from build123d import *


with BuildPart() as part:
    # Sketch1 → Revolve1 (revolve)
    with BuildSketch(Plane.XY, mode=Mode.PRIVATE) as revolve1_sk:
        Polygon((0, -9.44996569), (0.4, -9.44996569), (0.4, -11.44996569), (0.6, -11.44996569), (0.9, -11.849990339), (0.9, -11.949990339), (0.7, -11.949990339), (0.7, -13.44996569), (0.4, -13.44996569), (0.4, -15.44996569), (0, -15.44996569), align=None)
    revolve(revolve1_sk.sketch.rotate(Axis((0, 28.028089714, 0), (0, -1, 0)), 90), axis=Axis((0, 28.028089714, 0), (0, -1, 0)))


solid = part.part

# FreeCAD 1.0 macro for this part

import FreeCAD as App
import Part
import Sketcher
from FreeCAD import Vector

doc = App.newDocument("Part")
params = doc.addObject("Spreadsheet::Sheet", "Params")
for row, (alias, value) in enumerate([
    ("sketch1_height", "6 mm"),
    ("sketch1_height2", "2 mm"),
    ("sketch1_width", "0.4 mm"),
    ("sketch1_width2", "0.3 mm"),
    ("sketch1_width3", "0.2 mm"),
    ("revolution_angle", "360 deg"),
], start=1):
    params.set(f"A{row}", alias)
    params.set(f"B{row}", "=" + value)
    params.setAlias(f"B{row}", alias)

body = doc.addObject("PartDesign::Body", "Body")

sketch1 = body.newObject("Sketcher::SketchObject", "Sketch")
sketch1.AttachmentSupport = (doc.getObject("XY_Plane"), [""])
sketch1.MapMode = "FlatFace"
sketch1.addGeometry(Part.LineSegment(Vector(0.4, -9.45, 0), Vector(0, -9.45, 0)), False)
sketch1.addGeometry(Part.LineSegment(Vector(0, -9.45, 0), Vector(0, -15.45, 0)), False)
sketch1.addGeometry(Part.LineSegment(Vector(0, -15.45, 0), Vector(0.4, -15.45, 0)), False)
sketch1.addGeometry(Part.LineSegment(Vector(0.4, -15.45, 0), Vector(0.4, -13.45, 0)), False)
sketch1.addGeometry(Part.LineSegment(Vector(0.4, -13.45, 0), Vector(0.7, -13.45, 0)), False)
sketch1.addGeometry(Part.LineSegment(Vector(0.7, -13.45, 0), Vector(0.7, -11.95, 0)), False)
sketch1.addGeometry(Part.LineSegment(Vector(0.7, -11.95, 0), Vector(0.9, -11.95, 0)), False)
sketch1.addGeometry(Part.LineSegment(Vector(0.9, -11.95, 0), Vector(0.9, -11.85, 0)), False)
sketch1.addGeometry(Part.LineSegment(Vector(0.9, -11.85, 0), Vector(0.6, -11.45, 0)), False)
sketch1.addGeometry(Part.LineSegment(Vector(0.6, -11.45, 0), Vector(0.4, -11.45, 0)), False)
sketch1.addGeometry(Part.LineSegment(Vector(0.4, -11.45, 0), Vector(0.4, -9.45, 0)), False)
sketch1.addConstraint(Sketcher.Constraint("Coincident", 0, 2, 1, 1))
sketch1.addConstraint(Sketcher.Constraint("Coincident", 1, 2, 2, 1))
sketch1.addConstraint(Sketcher.Constraint("Coincident", 2, 2, 3, 1))
sketch1.addConstraint(Sketcher.Constraint("Coincident", 3, 2, 4, 1))
sketch1.addConstraint(Sketcher.Constraint("Coincident", 4, 2, 5, 1))
sketch1.addConstraint(Sketcher.Constraint("Coincident", 5, 2, 6, 1))
sketch1.addConstraint(Sketcher.Constraint("Coincident", 6, 2, 7, 1))
sketch1.addConstraint(Sketcher.Constraint("Coincident", 7, 2, 8, 1))
sketch1.addConstraint(Sketcher.Constraint("Coincident", 8, 2, 9, 1))
sketch1.addConstraint(Sketcher.Constraint("Coincident", 9, 2, 10, 1))
sketch1.addConstraint(Sketcher.Constraint("Coincident", 10, 2, 0, 1))
sketch1.addConstraint(Sketcher.Constraint("Horizontal", 0))
sketch1.addConstraint(Sketcher.Constraint("Vertical", 1))
sketch1.addConstraint(Sketcher.Constraint("Horizontal", 2))
sketch1.addConstraint(Sketcher.Constraint("Vertical", 3))
sketch1.addConstraint(Sketcher.Constraint("Horizontal", 4))
sketch1.addConstraint(Sketcher.Constraint("Vertical", 5))
sketch1.addConstraint(Sketcher.Constraint("Horizontal", 6))
sketch1.addConstraint(Sketcher.Constraint("Vertical", 7))
sketch1.addConstraint(Sketcher.Constraint("Horizontal", 9))
sketch1.addConstraint(Sketcher.Constraint("Vertical", 10))
sketch1.addConstraint(Sketcher.Constraint("PointOnObject", 0, 2, -2))
sketch1.addConstraint(Sketcher.Constraint("Vertical", 3, 2, 9, 2))
sketch1.addConstraint(Sketcher.Constraint("Equal", 6, 9))
sketch1.addConstraint(Sketcher.Constraint("Equal", 3, 10))
sketch1.addConstraint(Sketcher.Constraint("DistanceY", 1, 2, 1, 1, 6.0))
sketch1.addConstraint(Sketcher.Constraint("DistanceY", 3, 1, 3, 2, 2.0))
sketch1.addConstraint(Sketcher.Constraint("DistanceX", 0, 2, 0, 1, 0.4))
sketch1.addConstraint(Sketcher.Constraint("DistanceX", 4, 1, 4, 2, 0.3))
sketch1.addConstraint(Sketcher.Constraint("DistanceX", 6, 1, 6, 2, 0.2))
sketch1.addConstraint(Sketcher.Constraint("DistanceY", 7, 1, 7, 2, 0.1))
sketch1.addConstraint(Sketcher.Constraint("Distance", 8, 0.50002))
sketch1.addConstraint(Sketcher.Constraint("DistanceY", 5, 2, -1, 1, 11.94999))
sketch1.setExpression("Constraints[25]", "Params.sketch1_height")
sketch1.setExpression("Constraints[26]", "Params.sketch1_height2")
sketch1.setExpression("Constraints[27]", "Params.sketch1_width")
sketch1.setExpression("Constraints[28]", "Params.sketch1_width2")
sketch1.setExpression("Constraints[29]", "Params.sketch1_width3")
revolution = body.newObject("PartDesign::Revolution", "Revolution")
revolution.Profile = sketch1
revolution.ReferenceAxis = (sketch1, ["V_Axis"])
revolution.setExpression("Angle", "Params.revolution_angle")

doc.recompute()
